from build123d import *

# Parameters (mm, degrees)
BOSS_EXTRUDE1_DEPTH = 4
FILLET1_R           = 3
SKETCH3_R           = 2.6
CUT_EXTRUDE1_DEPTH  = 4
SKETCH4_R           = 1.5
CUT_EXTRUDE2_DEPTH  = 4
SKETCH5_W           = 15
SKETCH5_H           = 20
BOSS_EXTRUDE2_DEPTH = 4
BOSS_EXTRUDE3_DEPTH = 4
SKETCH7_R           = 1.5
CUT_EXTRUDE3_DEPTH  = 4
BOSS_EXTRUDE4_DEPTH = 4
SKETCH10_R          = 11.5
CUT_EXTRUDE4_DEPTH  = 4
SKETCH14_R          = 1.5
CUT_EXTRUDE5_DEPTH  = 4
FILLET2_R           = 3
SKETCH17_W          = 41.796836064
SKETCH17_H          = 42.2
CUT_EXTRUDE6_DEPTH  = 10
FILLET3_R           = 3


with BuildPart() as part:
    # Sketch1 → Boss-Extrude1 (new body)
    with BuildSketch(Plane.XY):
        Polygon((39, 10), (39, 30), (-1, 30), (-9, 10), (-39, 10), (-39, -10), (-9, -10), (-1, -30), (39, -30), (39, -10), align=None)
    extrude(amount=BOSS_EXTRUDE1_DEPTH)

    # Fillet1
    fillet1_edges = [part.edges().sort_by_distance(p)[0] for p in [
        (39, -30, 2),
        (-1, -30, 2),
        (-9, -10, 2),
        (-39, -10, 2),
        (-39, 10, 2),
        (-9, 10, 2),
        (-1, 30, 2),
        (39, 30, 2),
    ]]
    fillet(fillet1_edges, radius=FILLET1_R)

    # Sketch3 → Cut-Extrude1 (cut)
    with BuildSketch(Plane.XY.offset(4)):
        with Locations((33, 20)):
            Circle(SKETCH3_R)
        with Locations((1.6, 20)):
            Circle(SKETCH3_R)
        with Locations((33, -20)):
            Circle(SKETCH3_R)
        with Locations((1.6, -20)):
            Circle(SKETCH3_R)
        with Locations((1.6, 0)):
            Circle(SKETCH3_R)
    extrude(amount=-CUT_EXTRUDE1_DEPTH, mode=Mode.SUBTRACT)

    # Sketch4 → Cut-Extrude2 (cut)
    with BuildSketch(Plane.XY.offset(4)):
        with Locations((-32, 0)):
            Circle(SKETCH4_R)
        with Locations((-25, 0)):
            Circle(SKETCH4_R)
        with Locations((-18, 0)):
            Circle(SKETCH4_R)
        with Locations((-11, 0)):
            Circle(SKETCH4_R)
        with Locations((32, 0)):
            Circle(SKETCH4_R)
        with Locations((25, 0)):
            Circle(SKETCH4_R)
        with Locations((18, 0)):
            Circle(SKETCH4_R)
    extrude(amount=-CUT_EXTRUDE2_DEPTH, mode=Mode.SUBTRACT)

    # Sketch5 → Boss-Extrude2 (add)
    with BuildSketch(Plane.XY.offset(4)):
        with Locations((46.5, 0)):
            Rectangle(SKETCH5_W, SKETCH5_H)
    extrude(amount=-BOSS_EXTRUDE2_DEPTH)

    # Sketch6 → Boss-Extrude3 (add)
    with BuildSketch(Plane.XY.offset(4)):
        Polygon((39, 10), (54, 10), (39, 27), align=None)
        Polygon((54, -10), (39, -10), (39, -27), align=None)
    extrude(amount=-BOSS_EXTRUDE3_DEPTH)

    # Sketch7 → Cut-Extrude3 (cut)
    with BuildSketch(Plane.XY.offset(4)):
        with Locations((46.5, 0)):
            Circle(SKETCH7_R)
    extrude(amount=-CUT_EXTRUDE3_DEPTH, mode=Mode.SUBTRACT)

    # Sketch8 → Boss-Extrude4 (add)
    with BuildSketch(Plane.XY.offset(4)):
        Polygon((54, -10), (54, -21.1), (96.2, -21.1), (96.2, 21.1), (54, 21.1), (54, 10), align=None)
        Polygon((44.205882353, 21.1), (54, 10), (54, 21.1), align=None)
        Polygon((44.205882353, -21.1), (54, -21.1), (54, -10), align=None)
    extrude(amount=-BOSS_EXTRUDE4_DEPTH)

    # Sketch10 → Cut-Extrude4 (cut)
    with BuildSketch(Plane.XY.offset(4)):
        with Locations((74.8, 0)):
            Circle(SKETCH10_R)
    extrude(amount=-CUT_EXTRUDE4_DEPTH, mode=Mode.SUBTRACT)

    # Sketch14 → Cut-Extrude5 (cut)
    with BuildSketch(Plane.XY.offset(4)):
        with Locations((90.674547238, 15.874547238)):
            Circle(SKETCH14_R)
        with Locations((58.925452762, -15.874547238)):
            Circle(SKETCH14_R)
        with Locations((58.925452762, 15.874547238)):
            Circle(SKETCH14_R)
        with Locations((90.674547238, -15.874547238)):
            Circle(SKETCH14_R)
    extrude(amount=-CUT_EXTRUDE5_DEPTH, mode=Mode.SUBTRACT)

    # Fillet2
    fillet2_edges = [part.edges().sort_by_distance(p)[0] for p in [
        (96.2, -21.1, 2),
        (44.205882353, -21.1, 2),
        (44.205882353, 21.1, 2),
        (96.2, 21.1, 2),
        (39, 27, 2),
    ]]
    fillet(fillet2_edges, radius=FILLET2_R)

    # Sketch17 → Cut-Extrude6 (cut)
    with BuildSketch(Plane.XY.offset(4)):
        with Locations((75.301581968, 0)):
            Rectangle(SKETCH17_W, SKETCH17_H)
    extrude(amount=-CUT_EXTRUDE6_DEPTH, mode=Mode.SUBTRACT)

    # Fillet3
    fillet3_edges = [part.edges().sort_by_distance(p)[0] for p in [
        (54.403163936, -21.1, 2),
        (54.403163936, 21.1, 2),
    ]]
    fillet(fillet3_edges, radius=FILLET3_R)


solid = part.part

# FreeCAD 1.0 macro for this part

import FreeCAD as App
import Part
import Sketcher

V = App.Vector


def edges_at(feature, points):
    """Names of the edges that pass closest to the given points."""
    edges = feature.Shape.Edges
    near = lambda p: min(range(len(edges)), key=lambda i: edges[i].distToShape(Part.Vertex(*p))[0])
    return sorted({f"Edge{near(p) + 1}" for p in points})

doc = App.newDocument("Part")
body = doc.addObject("PartDesign::Body", "Body")

# Sketch on XY plane
sketch1 = doc.addObject("Sketcher::SketchObject", "Sketch")
body.addObject(sketch1)
sketch1.AttachmentSupport = (doc.XY_Plane, [""])
sketch1.MapMode = "FlatFace"
sketch1.addGeometry([
    Part.LineSegment(V(39, 30, 0), V(-1, 30, 0)),  # 0
    Part.LineSegment(V(-1, 30, 0), V(-9, 10, 0)),  # 1
    Part.LineSegment(V(-9, 10, 0), V(-39, 10, 0)),  # 2
    Part.LineSegment(V(-39, 10, 0), V(-39, -10, 0)),  # 3
    Part.LineSegment(V(-39, -10, 0), V(-9, -10, 0)),  # 4
    Part.LineSegment(V(-9, -10, 0), V(-1, -30, 0)),  # 5
    Part.LineSegment(V(-1, -30, 0), V(39, -30, 0)),  # 6
    Part.LineSegment(V(39, -30, 0), V(39, 30, 0)),  # 7
], False)
sketch1.addConstraint([
    Sketcher.Constraint("Coincident", 0, 2, 1, 1),
    Sketcher.Constraint("Coincident", 1, 2, 2, 1),
    Sketcher.Constraint("Coincident", 2, 2, 3, 1),
    Sketcher.Constraint("Coincident", 3, 2, 4, 1),
    Sketcher.Constraint("Coincident", 4, 2, 5, 1),
    Sketcher.Constraint("Coincident", 5, 2, 6, 1),
    Sketcher.Constraint("Coincident", 6, 2, 7, 1),
    Sketcher.Constraint("Coincident", 7, 2, 0, 1),
    Sketcher.Constraint("Horizontal", 0),
    Sketcher.Constraint("Horizontal", 2),
    Sketcher.Constraint("Vertical", 3),
    Sketcher.Constraint("Horizontal", 4),
    Sketcher.Constraint("Horizontal", 6),
    Sketcher.Constraint("Vertical", 7),
    Sketcher.Constraint("Symmetric", 1, 2, 4, 2, -1),
    Sketcher.Constraint("Symmetric", 0, 2, 5, 2, -1),
    Sketcher.Constraint("DistanceX", 0, 2, 0, 1, 40.0),
    Sketcher.Constraint("DistanceX", 2, 2, 2, 1, 30.0),
    Sketcher.Constraint("DistanceY", 3, 2, 3, 1, 20.0),
    Sketcher.Constraint("DistanceY", 7, 1, 7, 2, 60.0),
    Sketcher.Constraint("DistanceX", 0, 2, -1, 1, 1.0),
    Sketcher.Constraint("DistanceX", 1, 2, -1, 1, 9.0),
])
pad1 = doc.addObject("PartDesign::Pad", "Pad")
body.addObject(pad1)
pad1.Profile = sketch1
pad1.Length = 4
doc.recompute()

fillet = doc.addObject("PartDesign::Fillet", "Fillet")
body.addObject(fillet)
fillet.Base = (pad1, edges_at(pad1, [
    (39, -30, 2),
    (-1, -30, 2),
    (-9, -10, 2),
    (-39, -10, 2),
    (-39, 10, 2),
    (-9, 10, 2),
    (-1, 30, 2),
    (39, 30, 2),
]))
fillet.Radius = 3

# Sketch on XY plane
sketch2 = doc.addObject("Sketcher::SketchObject", "Sketch001")
body.addObject(sketch2)
sketch2.AttachmentSupport = (doc.XY_Plane, [""])
sketch2.MapMode = "FlatFace"
sketch2.AttachmentOffset = App.Placement(V(0, 0, 4), App.Rotation())
sketch2.addGeometry([
    Part.Circle(V(33, 20, 0), V(0, 0, 1), 2.6),  # 0
    Part.Circle(V(1.6, 20, 0), V(0, 0, 1), 2.6),  # 1
    Part.Circle(V(33, -20, 0), V(0, 0, 1), 2.6),  # 2
    Part.Circle(V(1.6, -20, 0), V(0, 0, 1), 2.6),  # 3
    Part.Circle(V(1.6, 0, 0), V(0, 0, 1), 2.6),  # 4
], False)
sketch2.addConstraint([
    Sketcher.Constraint("Equal", 0, 1),
    Sketcher.Constraint("Equal", 1, 2),
    Sketcher.Constraint("Equal", 2, 3),
    Sketcher.Constraint("Equal", 3, 4),
    Sketcher.Constraint("Symmetric", 0, 3, 2, 3, -1),
    Sketcher.Constraint("Symmetric", 1, 3, 3, 3, -1),
    Sketcher.Constraint("PointOnObject", 4, 3, -1),
    Sketcher.Constraint("Horizontal", 0, 3, 1, 3),
    Sketcher.Constraint("Vertical", 3, 3, 4, 3),
    Sketcher.Constraint("Diameter", 0, 5.2),
    Sketcher.Constraint("DistanceX", -1, 1, 0, 3, 33.0),
    Sketcher.Constraint("DistanceY", -1, 1, 0, 3, 20.0),
    Sketcher.Constraint("DistanceX", -1, 1, 1, 3, 1.6),
])
pocket1 = doc.addObject("PartDesign::Pocket", "Pocket")
body.addObject(pocket1)
pocket1.Profile = sketch2
pocket1.Length = 4

# Sketch on XY plane
sketch3 = doc.addObject("Sketcher::SketchObject", "Sketch002")
body.addObject(sketch3)
sketch3.AttachmentSupport = (doc.XY_Plane, [""])
sketch3.MapMode = "FlatFace"
sketch3.AttachmentOffset = App.Placement(V(0, 0, 4), App.Rotation())
sketch3.addGeometry([
    Part.Circle(V(-32, 0, 0), V(0, 0, 1), 1.5),  # 0
    Part.Circle(V(-25, 0, 0), V(0, 0, 1), 1.5),  # 1
    Part.Circle(V(-18, 0, 0), V(0, 0, 1), 1.5),  # 2
    Part.Circle(V(-11, 0, 0), V(0, 0, 1), 1.5),  # 3
    Part.Circle(V(32, 0, 0), V(0, 0, 1), 1.5),  # 4
    Part.Circle(V(25, 0, 0), V(0, 0, 1), 1.5),  # 5
    Part.Circle(V(18, 0, 0), V(0, 0, 1), 1.5),  # 6
], False)
sketch3.addConstraint([
    Sketcher.Constraint("Equal", 0, 1),
    Sketcher.Constraint("Equal", 1, 2),
    Sketcher.Constraint("Equal", 2, 3),
    Sketcher.Constraint("Equal", 3, 4),
    Sketcher.Constraint("Equal", 4, 5),
    Sketcher.Constraint("Equal", 5, 6),
    Sketcher.Constraint("Symmetric", 0, 3, 4, 3, -1, 1),
    Sketcher.Constraint("Symmetric", 1, 3, 5, 3, -1, 1),
    Sketcher.Constraint("Symmetric", 2, 3, 6, 3, -1, 1),
    Sketcher.Constraint("PointOnObject", 0, 3, -1),
    Sketcher.Constraint("PointOnObject", 1, 3, -1),
    Sketcher.Constraint("PointOnObject", 2, 3, -1),
    Sketcher.Constraint("PointOnObject", 3, 3, -1),
    Sketcher.Constraint("Diameter", 0, 3.0),
    Sketcher.Constraint("DistanceX", 0, 3, -1, 1, 32.0),
    Sketcher.Constraint("DistanceX", 1, 3, -1, 1, 25.0),
    Sketcher.Constraint("DistanceX", 2, 3, -1, 1, 18.0),
    Sketcher.Constraint("DistanceX", 3, 3, -1, 1, 11.0),
])
pocket2 = doc.addObject("PartDesign::Pocket", "Pocket001")
body.addObject(pocket2)
pocket2.Profile = sketch3
pocket2.Length = 4

# Sketch on XY plane
sketch4 = doc.addObject("Sketcher::SketchObject", "Sketch003")
body.addObject(sketch4)
sketch4.AttachmentSupport = (doc.XY_Plane, [""])
sketch4.MapMode = "FlatFace"
sketch4.AttachmentOffset = App.Placement(V(0, 0, 4), App.Rotation())
sketch4.addGeometry([
    Part.LineSegment(V(39, 10, 0), V(39, -10, 0)),
    Part.LineSegment(V(39, -10, 0), V(54, -10, 0)),
    Part.LineSegment(V(54, -10, 0), V(54, 10, 0)),
    Part.LineSegment(V(54, 10, 0), V(39, 10, 0)),
], False)
sketch4.addConstraint([
    Sketcher.Constraint("Coincident", 0, 2, 1, 1),
    Sketcher.Constraint("Coincident", 1, 2, 2, 1),
    Sketcher.Constraint("Coincident", 2, 2, 3, 1),
    Sketcher.Constraint("Coincident", 3, 2, 0, 1),
    Sketcher.Constraint("Vertical", 0),
    Sketcher.Constraint("Horizontal", 1),
    Sketcher.Constraint("Vertical", 2),
    Sketcher.Constraint("Horizontal", 3),
    Sketcher.Constraint("DistanceX", 1, 1, 1, 2, 15.0),
    Sketcher.Constraint("DistanceY", 0, 2, 0, 1, 20.0),
    Sketcher.Constraint("DistanceX", -1, 1, 0, 2, 39.0),
    Sketcher.Constraint("DistanceY", 0, 2, -1, 1, 10.0),
])
pad2 = doc.addObject("PartDesign::Pad", "Pad001")
body.addObject(pad2)
pad2.Profile = sketch4
pad2.Length = 4
pad2.Reversed = True

# Sketch on XY plane
sketch5 = doc.addObject("Sketcher::SketchObject", "Sketch004")
body.addObject(sketch5)
sketch5.AttachmentSupport = (doc.XY_Plane, [""])
sketch5.MapMode = "FlatFace"
sketch5.AttachmentOffset = App.Placement(V(0, 0, 4), App.Rotation())
sketch5.addGeometry([
    Part.LineSegment(V(39, 10, 0), V(54, 10, 0)),  # 0
    Part.LineSegment(V(54, 10, 0), V(39, 27, 0)),  # 1
    Part.LineSegment(V(39, 27, 0), V(39, 10, 0)),  # 2
    Part.LineSegment(V(54, -10, 0), V(39, -10, 0)),  # 3
    Part.LineSegment(V(39, -10, 0), V(39, -27, 0)),  # 4
    Part.LineSegment(V(39, -27, 0), V(54, -10, 0)),  # 5
], False)
sketch5.addConstraint([
    Sketcher.Constraint("Coincident", 0, 2, 1, 1),
    Sketcher.Constraint("Coincident", 1, 2, 2, 1),
    Sketcher.Constraint("Coincident", 2, 2, 0, 1),
    Sketcher.Constraint("Coincident", 3, 2, 4, 1),
    Sketcher.Constraint("Coincident", 4, 2, 5, 1),
    Sketcher.Constraint("Coincident", 5, 2, 3, 1),
    Sketcher.Constraint("Horizontal", 0),
    Sketcher.Constraint("Vertical", 2),
    Sketcher.Constraint("Horizontal", 3),
    Sketcher.Constraint("Vertical", 4),
    Sketcher.Constraint("Symmetric", 2, 2, 3, 2, -1),
    Sketcher.Constraint("Vertical", 0, 2, 5, 2),
    Sketcher.Constraint("Equal", 2, 4),
    Sketcher.Constraint("DistanceX", 0, 1, 0, 2, 15.0),
    Sketcher.Constraint("DistanceY", 2, 2, 2, 1, 17.0),
    Sketcher.Constraint("DistanceX", -1, 1, 0, 2, 54.0),
    Sketcher.Constraint("DistanceY", -1, 1, 0, 2, 10.0),
])
pad3 = doc.addObject("PartDesign::Pad", "Pad002")
body.addObject(pad3)
pad3.Profile = sketch5
pad3.Length = 4
pad3.Reversed = True

# Sketch on XY plane
sketch6 = doc.addObject("Sketcher::SketchObject", "Sketch005")
body.addObject(sketch6)
sketch6.AttachmentSupport = (doc.XY_Plane, [""])
sketch6.MapMode = "FlatFace"
sketch6.AttachmentOffset = App.Placement(V(0, 0, 4), App.Rotation())
sketch6.addGeometry(Part.Circle(V(46.5, 0, 0), V(0, 0, 1), 1.5), False)
sketch6.addConstraint([
    Sketcher.Constraint("PointOnObject", 0, 3, -1),
    Sketcher.Constraint("Diameter", 0, 3.0),
    Sketcher.Constraint("DistanceX", -1, 1, 0, 3, 46.5),
])
pocket3 = doc.addObject("PartDesign::Pocket", "Pocket002")
body.addObject(pocket3)
pocket3.Profile = sketch6
pocket3.Length = 4

# Sketch on XY plane
sketch7 = doc.addObject("Sketcher::SketchObject", "Sketch006")
body.addObject(sketch7)
sketch7.AttachmentSupport = (doc.XY_Plane, [""])
sketch7.MapMode = "FlatFace"
sketch7.AttachmentOffset = App.Placement(V(0, 0, 4), App.Rotation())
sketch7.addGeometry([
    Part.LineSegment(V(96.2, -21.1, 0), V(96.2, 21.1, 0)),  # 0
    Part.LineSegment(V(96.2, 21.1, 0), V(44.205882, 21.1, 0)),  # 1
    Part.LineSegment(V(44.205882, 21.1, 0), V(54, 10, 0)),  # 2
    Part.LineSegment(V(54, 10, 0), V(54, -10, 0)),  # 3
    Part.LineSegment(V(54, -10, 0), V(44.205882, -21.1, 0)),  # 4
    Part.LineSegment(V(44.205882, -21.1, 0), V(96.2, -21.1, 0)),  # 5
], False)
sketch7.addConstraint([
    Sketcher.Constraint("Coincident", 0, 2, 1, 1),
    Sketcher.Constraint("Coincident", 1, 2, 2, 1),
    Sketcher.Constraint("Coincident", 2, 2, 3, 1),
    Sketcher.Constraint("Coincident", 3, 2, 4, 1),
    Sketcher.Constraint("Coincident", 4, 2, 5, 1),
    Sketcher.Constraint("Coincident", 5, 2, 0, 1),
    Sketcher.Constraint("Vertical", 0),
    Sketcher.Constraint("Horizontal", 1),
    Sketcher.Constraint("Vertical", 3),
    Sketcher.Constraint("Horizontal", 5),
    Sketcher.Constraint("Symmetric", 1, 2, 4, 2, -1),
    Sketcher.Constraint("Equal", 2, 4),
    Sketcher.Constraint("DistanceY", 3, 2, 3, 1, 20.0),
    Sketcher.Constraint("DistanceY", 0, 1, 0, 2, 42.2),
    Sketcher.Constraint("DistanceX", -1, 1, 2, 2, 54.0),
    Sketcher.Constraint("DistanceX", -1, 1, 0, 2, 96.2),
    Sketcher.Constraint("Distance", 2, 14.8032),
])
pad4 = doc.addObject("PartDesign::Pad", "Pad003")
body.addObject(pad4)
pad4.Profile = sketch7
pad4.Length = 4
pad4.Reversed = True

# Sketch on XY plane
sketch8 = doc.addObject("Sketcher::SketchObject", "Sketch007")
body.addObject(sketch8)
sketch8.AttachmentSupport = (doc.XY_Plane, [""])
sketch8.MapMode = "FlatFace"
sketch8.AttachmentOffset = App.Placement(V(0, 0, 4), App.Rotation())
sketch8.addGeometry(Part.Circle(V(74.8, 0, 0), V(0, 0, 1), 11.5), False)
sketch8.addConstraint([
    Sketcher.Constraint("PointOnObject", 0, 3, -1),
    Sketcher.Constraint("Diameter", 0, 23.0),
    Sketcher.Constraint("DistanceX", -1, 1, 0, 3, 74.8),
])
pocket4 = doc.addObject("PartDesign::Pocket", "Pocket003")
body.addObject(pocket4)
pocket4.Profile = sketch8
pocket4.Length = 4

# Sketch on XY plane
sketch9 = doc.addObject("Sketcher::SketchObject", "Sketch008")
body.addObject(sketch9)
sketch9.AttachmentSupport = (doc.XY_Plane, [""])
sketch9.MapMode = "FlatFace"
sketch9.AttachmentOffset = App.Placement(V(0, 0, 4), App.Rotation())
sketch9.addGeometry([
    Part.Circle(V(90.674547, 15.874547, 0), V(0, 0, 1), 1.5),
    Part.Circle(V(58.925453, -15.874547, 0), V(0, 0, 1), 1.5),
    Part.Circle(V(58.925453, 15.874547, 0), V(0, 0, 1), 1.5),
    Part.Circle(V(90.674547, -15.874547, 0), V(0, 0, 1), 1.5),
], False)
sketch9.addConstraint([
    Sketcher.Constraint("Equal", 0, 1),
    Sketcher.Constraint("Equal", 1, 2),
    Sketcher.Constraint("Equal", 2, 3),
    Sketcher.Constraint("Symmetric", 1, 3, 2, 3, -1),
    Sketcher.Constraint("Symmetric", 0, 3, 3, 3, -1),
    Sketcher.Constraint("Horizontal", 0, 3, 2, 3),
    Sketcher.Constraint("Diameter", 0, 3.0),
    Sketcher.Constraint("DistanceX", -1, 1, 0, 3, 90.674547),
    Sketcher.Constraint("DistanceY", -1, 1, 0, 3, 15.874547),
    Sketcher.Constraint("DistanceX", -1, 1, 1, 3, 58.925453),
])
pocket5 = doc.addObject("PartDesign::Pocket", "Pocket004")
body.addObject(pocket5)
pocket5.Profile = sketch9
pocket5.Length = 4
doc.recompute()

fillet2 = doc.addObject("PartDesign::Fillet", "Fillet001")
body.addObject(fillet2)
fillet2.Base = (pocket5, edges_at(pocket5, [
    (96.2, -21.1, 2),
    (44.206, -21.1, 2),
    (44.206, 21.1, 2),
    (96.2, 21.1, 2),
    (39, 27, 2),
]))
fillet2.Radius = 3

# Sketch on XY plane
sketch10 = doc.addObject("Sketcher::SketchObject", "Sketch009")
body.addObject(sketch10)
sketch10.AttachmentSupport = (doc.XY_Plane, [""])
sketch10.MapMode = "FlatFace"
sketch10.AttachmentOffset = App.Placement(V(0, 0, 4), App.Rotation())
sketch10.addGeometry([
    Part.LineSegment(V(54.403164, 21.1, 0), V(54.403164, -21.1, 0)),
    Part.LineSegment(V(54.403164, -21.1, 0), V(96.2, -21.1, 0)),
    Part.LineSegment(V(96.2, -21.1, 0), V(96.2, 21.1, 0)),
    Part.LineSegment(V(96.2, 21.1, 0), V(54.403164, 21.1, 0)),
], False)
sketch10.addConstraint([
    Sketcher.Constraint("Coincident", 0, 2, 1, 1),
    Sketcher.Constraint("Coincident", 1, 2, 2, 1),
    Sketcher.Constraint("Coincident", 2, 2, 3, 1),
    Sketcher.Constraint("Coincident", 3, 2, 0, 1),
    Sketcher.Constraint("Vertical", 0),
    Sketcher.Constraint("Horizontal", 1),
    Sketcher.Constraint("Vertical", 2),
    Sketcher.Constraint("Horizontal", 3),
    Sketcher.Constraint("DistanceY", 0, 2, 0, 1, 42.2),
    Sketcher.Constraint("DistanceY", 0, 2, -1, 1, 21.1),
    Sketcher.Constraint("DistanceX", -1, 1, 1, 2, 96.2),
    Sketcher.Constraint("DistanceX", 1, 1, 1, 2, 41.796836),
])
pocket6 = doc.addObject("PartDesign::Pocket", "Pocket005")
body.addObject(pocket6)
pocket6.Profile = sketch10
pocket6.Length = 10
doc.recompute()

fillet3 = doc.addObject("PartDesign::Fillet", "Fillet002")
body.addObject(fillet3)
fillet3.Base = (pocket6, edges_at(pocket6, [(54.403, -21.1, 2), (54.403, 21.1, 2)]))
fillet3.Radius = 3

doc.recompute()
